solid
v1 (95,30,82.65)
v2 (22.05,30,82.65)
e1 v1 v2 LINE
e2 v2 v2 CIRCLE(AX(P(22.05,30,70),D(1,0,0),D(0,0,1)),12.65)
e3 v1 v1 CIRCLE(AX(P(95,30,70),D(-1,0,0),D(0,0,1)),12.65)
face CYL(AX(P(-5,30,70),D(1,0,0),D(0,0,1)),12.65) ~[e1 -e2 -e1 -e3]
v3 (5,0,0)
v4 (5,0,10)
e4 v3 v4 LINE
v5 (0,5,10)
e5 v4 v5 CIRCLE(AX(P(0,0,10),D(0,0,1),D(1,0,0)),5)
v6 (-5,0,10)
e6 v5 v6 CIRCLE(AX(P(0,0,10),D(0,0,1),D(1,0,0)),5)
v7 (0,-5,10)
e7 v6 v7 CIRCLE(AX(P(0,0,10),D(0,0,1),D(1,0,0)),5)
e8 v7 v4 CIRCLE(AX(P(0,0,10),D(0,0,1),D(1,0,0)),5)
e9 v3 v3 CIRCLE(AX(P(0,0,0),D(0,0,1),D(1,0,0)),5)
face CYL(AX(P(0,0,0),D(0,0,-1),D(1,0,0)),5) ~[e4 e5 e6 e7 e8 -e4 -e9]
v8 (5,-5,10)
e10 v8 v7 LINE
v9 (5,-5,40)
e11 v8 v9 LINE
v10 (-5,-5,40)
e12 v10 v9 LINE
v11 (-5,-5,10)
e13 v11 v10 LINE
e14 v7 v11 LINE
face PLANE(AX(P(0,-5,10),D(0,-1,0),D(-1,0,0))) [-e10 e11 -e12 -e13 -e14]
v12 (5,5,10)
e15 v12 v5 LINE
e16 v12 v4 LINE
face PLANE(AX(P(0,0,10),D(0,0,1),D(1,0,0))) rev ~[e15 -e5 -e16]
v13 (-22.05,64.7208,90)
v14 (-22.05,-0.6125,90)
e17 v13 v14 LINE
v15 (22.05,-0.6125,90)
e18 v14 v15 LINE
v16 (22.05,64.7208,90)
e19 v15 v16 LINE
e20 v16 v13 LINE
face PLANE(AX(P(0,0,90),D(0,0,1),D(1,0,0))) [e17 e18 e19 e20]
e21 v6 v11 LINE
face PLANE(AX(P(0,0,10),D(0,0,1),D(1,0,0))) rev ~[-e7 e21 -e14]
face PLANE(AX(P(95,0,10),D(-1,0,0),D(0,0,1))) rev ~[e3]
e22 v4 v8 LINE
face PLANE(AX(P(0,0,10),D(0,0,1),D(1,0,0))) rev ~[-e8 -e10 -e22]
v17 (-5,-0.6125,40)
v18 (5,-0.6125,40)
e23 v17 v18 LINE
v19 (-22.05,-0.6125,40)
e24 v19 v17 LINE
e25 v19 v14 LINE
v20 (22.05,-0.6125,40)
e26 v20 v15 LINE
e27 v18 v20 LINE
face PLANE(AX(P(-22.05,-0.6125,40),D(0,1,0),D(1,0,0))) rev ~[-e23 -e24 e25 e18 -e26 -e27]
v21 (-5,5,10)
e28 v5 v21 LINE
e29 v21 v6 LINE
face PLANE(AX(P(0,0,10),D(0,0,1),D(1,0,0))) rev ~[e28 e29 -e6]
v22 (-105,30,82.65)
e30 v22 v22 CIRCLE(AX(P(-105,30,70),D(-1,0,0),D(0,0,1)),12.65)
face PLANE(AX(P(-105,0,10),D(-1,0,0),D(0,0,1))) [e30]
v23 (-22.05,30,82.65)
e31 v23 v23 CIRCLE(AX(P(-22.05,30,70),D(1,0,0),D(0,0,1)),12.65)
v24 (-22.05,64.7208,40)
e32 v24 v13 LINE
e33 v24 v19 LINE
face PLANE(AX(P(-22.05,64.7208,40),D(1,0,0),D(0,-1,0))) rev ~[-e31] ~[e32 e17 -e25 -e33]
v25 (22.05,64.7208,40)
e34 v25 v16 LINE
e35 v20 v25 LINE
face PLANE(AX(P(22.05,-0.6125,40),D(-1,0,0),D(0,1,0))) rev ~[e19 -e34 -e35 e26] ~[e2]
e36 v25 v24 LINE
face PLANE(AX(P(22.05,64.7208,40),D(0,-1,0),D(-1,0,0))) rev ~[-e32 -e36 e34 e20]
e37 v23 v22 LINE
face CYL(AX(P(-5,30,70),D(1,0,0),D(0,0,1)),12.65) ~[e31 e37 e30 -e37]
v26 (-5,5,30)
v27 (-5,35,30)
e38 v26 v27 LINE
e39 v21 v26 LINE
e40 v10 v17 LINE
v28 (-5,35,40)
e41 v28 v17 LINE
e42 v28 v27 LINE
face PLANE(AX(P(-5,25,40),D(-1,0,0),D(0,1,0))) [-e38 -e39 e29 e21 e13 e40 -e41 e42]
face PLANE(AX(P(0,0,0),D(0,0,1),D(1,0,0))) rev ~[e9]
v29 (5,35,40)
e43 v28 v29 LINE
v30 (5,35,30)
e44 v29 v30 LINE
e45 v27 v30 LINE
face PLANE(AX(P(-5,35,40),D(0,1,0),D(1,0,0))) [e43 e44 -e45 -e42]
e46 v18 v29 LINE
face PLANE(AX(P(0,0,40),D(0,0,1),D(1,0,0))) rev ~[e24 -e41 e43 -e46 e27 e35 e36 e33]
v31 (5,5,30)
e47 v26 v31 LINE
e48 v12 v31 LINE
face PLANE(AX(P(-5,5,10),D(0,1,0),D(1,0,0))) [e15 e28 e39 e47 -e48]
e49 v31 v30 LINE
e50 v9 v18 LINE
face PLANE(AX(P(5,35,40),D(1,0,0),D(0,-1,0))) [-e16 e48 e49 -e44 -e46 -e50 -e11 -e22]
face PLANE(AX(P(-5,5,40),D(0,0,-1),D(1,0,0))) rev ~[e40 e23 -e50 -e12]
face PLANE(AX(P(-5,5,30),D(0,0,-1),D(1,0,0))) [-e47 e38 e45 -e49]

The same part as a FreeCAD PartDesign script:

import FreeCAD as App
import Part
import Sketcher

V = App.Vector

doc = App.newDocument("Part")
body = doc.addObject("PartDesign::Body", "Body")

sketch1 = body.newObject("Sketcher::SketchObject", "Sketch")
sketch1.AttachmentSupport = (doc.getObject("XY_Plane"), [""])
sketch1.MapMode = "FlatFace"
sketch1.addGeometry(Part.Circle(V(0, 0, 0), V(0, 0, 1), 5), False)
sketch1.addConstraint([
    Sketcher.Constraint("Coincident", 0, 3, -1, 1),
    Sketcher.Constraint("Diameter", 0, 10.0),
])
pad1 = body.newObject("PartDesign::Pad", "Pad")
pad1.Profile = sketch1
pad1.Length = 10

sketch2 = body.newObject("Sketcher::SketchObject", "Sketch001")
sketch2.AttachmentSupport = (doc.getObject("XY_Plane"), [""])
sketch2.MapMode = "FlatFace"
sketch2.AttachmentOffset = App.Placement(V(0, 0, 10), App.Rotation())
sketch2.addGeometry([
    Part.LineSegment(V(-5, 5, 0), V(-5, -5, 0)),
    Part.LineSegment(V(-5, -5, 0), V(5, -5, 0)),
    Part.LineSegment(V(5, -5, 0), V(5, 5, 0)),
    Part.LineSegment(V(5, 5, 0), V(-5, 5, 0)),
], False)
sketch2.addConstraint([
    Sketcher.Constraint("Coincident", 0, 2, 1, 1),
    Sketcher.Constraint("Coincident", 1, 2, 2, 1),
    Sketcher.Constraint("Coincident", 2, 2, 3, 1),
    Sketcher.Constraint("Coincident", 3, 2, 0, 1),
    Sketcher.Constraint("Vertical", 0),
    Sketcher.Constraint("Horizontal", 1),
    Sketcher.Constraint("Vertical", 2),
    Sketcher.Constraint("Horizontal", 3),
    Sketcher.Constraint("Symmetric", 0, 2, 2, 2, -1, 1),
    Sketcher.Constraint("Equal", 3, 0),
    Sketcher.Constraint("DistanceX", 1, 1, 1, 2, 10.0),
])
pad2 = body.newObject("PartDesign::Pad", "Pad001")
pad2.Profile = sketch2
pad2.Length = 30

sketch3 = body.newObject("Sketcher::SketchObject", "Sketch002")
sketch3.AttachmentSupport = (doc.getObject("XZ_Plane"), [""])
sketch3.MapMode = "FlatFace"
sketch3.AttachmentOffset = App.Placement(V(0, 0, -5), App.Rotation())
sketch3.addGeometry([
    Part.LineSegment(V(-5, 30, 0), V(-5, 40, 0)),
    Part.LineSegment(V(-5, 40, 0), V(5, 40, 0)),
    Part.LineSegment(V(5, 40, 0), V(5, 30, 0)),
    Part.LineSegment(V(5, 30, 0), V(-5, 30, 0)),
], False)
sketch3.addConstraint([
    Sketcher.Constraint("Coincident", 0, 2, 1, 1),
    Sketcher.Constraint("Coincident", 1, 2, 2, 1),
    Sketcher.Constraint("Coincident", 2, 2, 3, 1),
    Sketcher.Constraint("Coincident", 3, 2, 0, 1),
    Sketcher.Constraint("Vertical", 0),
    Sketcher.Constraint("Horizontal", 1),
    Sketcher.Constraint("Vertical", 2),
    Sketcher.Constraint("Horizontal", 3),
    Sketcher.Constraint("Equal", 3, 0),
    Sketcher.Constraint("DistanceX", 1, 1, 1, 2, 10.0),
    Sketcher.Constraint("DistanceX", 0, 2, -1, 1, 5.0),
    Sketcher.Constraint("DistanceY", -1, 1, 0, 2, 40.0),
])
pad3 = body.newObject("PartDesign::Pad", "Pad002")
pad3.Profile = sketch3
pad3.Length = 30
pad3.Reversed = True

sketch4 = body.newObject("Sketcher::SketchObject", "Sketch003")
sketch4.AttachmentSupport = (doc.getObject("XY_Plane"), [""])
sketch4.MapMode = "FlatFace"
sketch4.AttachmentOffset = App.Placement(V(0, 0, 40), App.Rotation())
sketch4.addGeometry([
    Part.LineSegment(V(-5, 35, 0), V(-5, 25, 0)),
    Part.LineSegment(V(-5, 25, 0), V(5, 25, 0)),
    Part.LineSegment(V(5, 25, 0), V(5, 35, 0)),
    Part.LineSegment(V(5, 35, 0), V(-5, 35, 0)),
], False)
sketch4.addConstraint([
    Sketcher.Constraint("Coincident", 0, 2, 1, 1),
    Sketcher.Constraint("Coincident", 1, 2, 2, 1),
    Sketcher.Constraint("Coincident", 2, 2, 3, 1),
    Sketcher.Constraint("Coincident", 3, 2, 0, 1),
    Sketcher.Constraint("Vertical", 0),
    Sketcher.Constraint("Horizontal", 1),
    Sketcher.Constraint("Vertical", 2),
    Sketcher.Constraint("Horizontal", 3),
    Sketcher.Constraint("Equal", 3, 0),
    Sketcher.Constraint("DistanceX", 1, 1, 1, 2, 10.0),
    Sketcher.Constraint("DistanceX", 0, 2, -1, 1, 5.0),
    Sketcher.Constraint("DistanceY", -1, 1, 0, 2, 25.0),
])
pad4 = body.newObject("PartDesign::Pad", "Pad003")
pad4.Profile = sketch4
pad4.Length = 30

sketch5 = body.newObject("Sketcher::SketchObject", "Sketch004")
sketch5.AttachmentSupport = (doc.getObject("YZ_Plane"), [""])
sketch5.MapMode = "FlatFace"
sketch5.AttachmentOffset = App.Placement(V(0, 0, -5), App.Rotation())
sketch5.addGeometry(Part.Circle(V(30, 70, 0), V(0, 0, 1), 13), False)
sketch5.addConstraint([
    Sketcher.Constraint("Diameter", 0, 25.3),
    Sketcher.Constraint("DistanceX", -1, 1, 0, 3, 30.0),
    Sketcher.Constraint("DistanceY", -1, 1, 0, 3, 70.0),
])
pad5 = body.newObject("PartDesign::Pad", "Pad004")
pad5.Profile = sketch5
pad5.Length = 200
pad5.Midplane = True

sketch6 = body.newObject("Sketcher::SketchObject", "Sketch005")
sketch6.AttachmentSupport = (doc.getObject("XY_Plane"), [""])
sketch6.MapMode = "FlatFace"
sketch6.AttachmentOffset = App.Placement(V(0, 0, 40), App.Rotation())
sketch6.addGeometry([
    Part.LineSegment(V(-22, 65, 0), V(-22, -1, 0)),
    Part.LineSegment(V(-22, -1, 0), V(22, -1, 0)),
    Part.LineSegment(V(22, -1, 0), V(22, 65, 0)),
    Part.LineSegment(V(22, 65, 0), V(-22, 65, 0)),
], False)
sketch6.addConstraint([
    Sketcher.Constraint("Coincident", 0, 2, 1, 1),
    Sketcher.Constraint("Coincident", 1, 2, 2, 1),
    Sketcher.Constraint("Coincident", 2, 2, 3, 1),
    Sketcher.Constraint("Coincident", 3, 2, 0, 1),
    Sketcher.Constraint("Vertical", 0),
    Sketcher.Constraint("Horizontal", 1),
    Sketcher.Constraint("Vertical", 2),
    Sketcher.Constraint("Horizontal", 3),
    Sketcher.Constraint("DistanceX", 1, 1, 1, 2, 44.1),
    Sketcher.Constraint("DistanceX", 0, 2, -1, 1, 22.05),
    Sketcher.Constraint("DistanceY", 0, 2, 0, 1, 65.3333),
    Sketcher.Constraint("DistanceY", 0, 2, -1, 1, 0.6125),
])
pad6 = body.newObject("PartDesign::Pad", "Pad005")
pad6.Profile = sketch6
pad6.Length = 50

doc.recompute()
